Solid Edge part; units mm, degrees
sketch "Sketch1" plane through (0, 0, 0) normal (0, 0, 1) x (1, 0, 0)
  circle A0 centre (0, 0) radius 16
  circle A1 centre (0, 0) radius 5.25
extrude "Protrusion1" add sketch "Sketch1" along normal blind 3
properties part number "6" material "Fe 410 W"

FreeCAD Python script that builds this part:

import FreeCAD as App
import Part
import Sketcher
from FreeCAD import Vector

doc = App.newDocument("Part")
body = doc.addObject("PartDesign::Body", "Body")

sketch1 = body.newObject("Sketcher::SketchObject", "Sketch")
sketch1.AttachmentSupport = (doc.getObject("XY_Plane"), [""])
sketch1.MapMode = "FlatFace"
sketch1.addGeometry(Part.Circle(Vector(0, 0, 0), Vector(0, 0, 1), 16), False)
sketch1.addGeometry(Part.Circle(Vector(0, 0, 0), Vector(0, 0, 1), 5.25), False)
sketch1.addConstraint(Sketcher.Constraint("Coincident", 0, 3, -1, 1))
sketch1.addConstraint(Sketcher.Constraint("Coincident", 1, 3, -1, 1))
sketch1.addConstraint(Sketcher.Constraint("Diameter", 0, 32.0))
sketch1.addConstraint(Sketcher.Constraint("Diameter", 1, 10.5))
pad1 = body.newObject("PartDesign::Pad", "Pad")
pad1.Profile = sketch1
pad1.Length = 3

doc.recompute()
